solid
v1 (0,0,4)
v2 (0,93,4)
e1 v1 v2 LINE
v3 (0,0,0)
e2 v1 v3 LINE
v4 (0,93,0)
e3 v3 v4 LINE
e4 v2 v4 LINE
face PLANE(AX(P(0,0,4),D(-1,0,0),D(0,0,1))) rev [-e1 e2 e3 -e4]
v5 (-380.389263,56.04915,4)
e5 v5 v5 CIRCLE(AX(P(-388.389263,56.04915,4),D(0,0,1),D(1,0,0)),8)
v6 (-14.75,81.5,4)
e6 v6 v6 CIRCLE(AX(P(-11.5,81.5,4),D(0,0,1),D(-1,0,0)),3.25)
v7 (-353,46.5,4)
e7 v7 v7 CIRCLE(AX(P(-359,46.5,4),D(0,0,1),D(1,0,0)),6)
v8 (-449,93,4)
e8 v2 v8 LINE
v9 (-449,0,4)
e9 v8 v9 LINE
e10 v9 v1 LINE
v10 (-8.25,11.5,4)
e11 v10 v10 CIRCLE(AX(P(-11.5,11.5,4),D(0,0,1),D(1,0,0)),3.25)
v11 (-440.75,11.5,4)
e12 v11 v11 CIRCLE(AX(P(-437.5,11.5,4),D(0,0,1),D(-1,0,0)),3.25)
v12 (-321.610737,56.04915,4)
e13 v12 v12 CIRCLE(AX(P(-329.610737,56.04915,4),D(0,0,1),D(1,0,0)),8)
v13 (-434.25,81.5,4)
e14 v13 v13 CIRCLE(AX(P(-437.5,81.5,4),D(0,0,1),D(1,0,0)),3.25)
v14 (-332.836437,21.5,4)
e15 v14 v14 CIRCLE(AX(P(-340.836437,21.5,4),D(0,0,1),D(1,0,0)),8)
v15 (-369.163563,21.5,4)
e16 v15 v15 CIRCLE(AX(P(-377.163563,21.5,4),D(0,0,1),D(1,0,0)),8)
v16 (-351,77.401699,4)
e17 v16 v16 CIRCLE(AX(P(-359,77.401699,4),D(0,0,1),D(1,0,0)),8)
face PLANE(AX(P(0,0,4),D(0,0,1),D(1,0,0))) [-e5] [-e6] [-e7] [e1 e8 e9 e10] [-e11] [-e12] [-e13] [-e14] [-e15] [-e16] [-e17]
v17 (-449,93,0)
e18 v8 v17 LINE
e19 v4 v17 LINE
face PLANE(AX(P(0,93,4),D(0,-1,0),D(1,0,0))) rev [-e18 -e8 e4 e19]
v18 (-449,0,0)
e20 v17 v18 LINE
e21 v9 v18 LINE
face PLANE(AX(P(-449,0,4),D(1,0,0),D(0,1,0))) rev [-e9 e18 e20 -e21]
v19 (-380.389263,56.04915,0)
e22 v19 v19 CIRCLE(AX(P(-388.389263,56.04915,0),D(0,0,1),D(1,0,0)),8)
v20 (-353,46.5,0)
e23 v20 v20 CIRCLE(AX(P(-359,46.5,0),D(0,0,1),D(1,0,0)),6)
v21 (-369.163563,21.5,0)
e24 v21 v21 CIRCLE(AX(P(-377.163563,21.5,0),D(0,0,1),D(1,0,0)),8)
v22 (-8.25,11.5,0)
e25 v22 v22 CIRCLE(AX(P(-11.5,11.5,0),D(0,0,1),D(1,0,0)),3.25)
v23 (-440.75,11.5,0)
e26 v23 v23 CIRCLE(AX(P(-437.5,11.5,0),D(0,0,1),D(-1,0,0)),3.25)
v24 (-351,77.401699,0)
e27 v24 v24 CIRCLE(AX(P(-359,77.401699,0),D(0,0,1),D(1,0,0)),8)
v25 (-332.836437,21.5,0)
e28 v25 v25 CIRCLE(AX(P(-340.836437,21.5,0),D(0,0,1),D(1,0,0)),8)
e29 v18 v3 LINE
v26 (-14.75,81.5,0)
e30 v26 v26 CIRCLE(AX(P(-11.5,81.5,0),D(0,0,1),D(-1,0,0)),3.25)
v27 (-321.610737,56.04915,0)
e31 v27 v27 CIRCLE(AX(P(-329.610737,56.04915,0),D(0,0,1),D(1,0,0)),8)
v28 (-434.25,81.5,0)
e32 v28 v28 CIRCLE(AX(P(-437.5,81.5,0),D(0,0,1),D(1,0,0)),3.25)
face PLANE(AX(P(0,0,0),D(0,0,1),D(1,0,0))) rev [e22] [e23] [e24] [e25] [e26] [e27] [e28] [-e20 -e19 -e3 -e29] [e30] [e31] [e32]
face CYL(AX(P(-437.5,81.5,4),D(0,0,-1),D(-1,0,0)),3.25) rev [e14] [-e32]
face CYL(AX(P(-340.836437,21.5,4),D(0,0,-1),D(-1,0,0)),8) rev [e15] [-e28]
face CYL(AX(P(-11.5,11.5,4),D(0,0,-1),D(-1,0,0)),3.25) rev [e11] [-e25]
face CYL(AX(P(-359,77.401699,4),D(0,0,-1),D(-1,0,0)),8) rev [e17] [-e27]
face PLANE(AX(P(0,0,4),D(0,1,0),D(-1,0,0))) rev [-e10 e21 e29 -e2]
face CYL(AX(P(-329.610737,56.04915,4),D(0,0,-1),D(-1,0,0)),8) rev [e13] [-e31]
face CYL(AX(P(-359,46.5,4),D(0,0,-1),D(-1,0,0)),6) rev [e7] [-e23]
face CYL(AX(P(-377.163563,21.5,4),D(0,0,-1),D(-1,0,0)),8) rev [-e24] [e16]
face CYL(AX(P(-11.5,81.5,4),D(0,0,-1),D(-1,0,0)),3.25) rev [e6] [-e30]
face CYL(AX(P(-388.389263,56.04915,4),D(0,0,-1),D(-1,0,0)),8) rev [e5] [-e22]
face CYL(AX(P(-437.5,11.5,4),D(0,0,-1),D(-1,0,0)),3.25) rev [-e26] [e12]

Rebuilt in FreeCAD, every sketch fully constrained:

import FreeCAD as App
import Part
import Sketcher
Q = App.Units.Quantity

doc = App.newDocument("Part")
body = doc.addObject("PartDesign::Body", "Body")

# Sketch on XY plane
sketch1 = body.newObject("Sketcher::SketchObject", "Sketch")
sketch1.AttachmentSupport = (doc.getObject("XY_Plane"), [""])
sketch1.MapMode = "FlatFace"
sketch1.addGeometry([
    Part.LineSegment(App.Vector(-449, 93, 0), App.Vector(-449, 0, 0)),  # 0
    Part.LineSegment(App.Vector(-449, 0, 0), App.Vector(0, 0, 0)),  # 1
    Part.LineSegment(App.Vector(0, 0, 0), App.Vector(0, 93, 0)),  # 2
    Part.LineSegment(App.Vector(0, 93, 0), App.Vector(-449, 93, 0)),  # 3
    Part.Circle(App.Vector(-437.5, 11.5, 0), App.Vector(0, 0, 1), 3.2),  # 4
    Part.Circle(App.Vector(-377.2, 21.5, 0), App.Vector(0, 0, 1), 8),  # 5
    Part.Circle(App.Vector(-340.8, 21.5, 0), App.Vector(0, 0, 1), 8),  # 6
    Part.Circle(App.Vector(-359, 46.5, 0), App.Vector(0, 0, 1), 6),  # 7
    Part.Circle(App.Vector(-11.5, 11.5, 0), App.Vector(0, 0, 1), 3.2),  # 8
    Part.Circle(App.Vector(-388.4, 56, 0), App.Vector(0, 0, 1), 8),  # 9
    Part.Circle(App.Vector(-329.6, 56, 0), App.Vector(0, 0, 1), 8),  # 10
    Part.Circle(App.Vector(-437.5, 81.5, 0), App.Vector(0, 0, 1), 3.2),  # 11
    Part.Circle(App.Vector(-359, 77.4, 0), App.Vector(0, 0, 1), 8),  # 12
    Part.Circle(App.Vector(-11.5, 81.5, 0), App.Vector(0, 0, 1), 3.2),  # 13
], False)
sketch1.addConstraint([
    Sketcher.Constraint("Coincident", 0, 2, 1, 1),
    Sketcher.Constraint("Coincident", 1, 2, 2, 1),
    Sketcher.Constraint("Coincident", 2, 2, 3, 1),
    Sketcher.Constraint("Coincident", 3, 2, 0, 1),
    Sketcher.Constraint("Vertical", 0),
    Sketcher.Constraint("Horizontal", 1),
    Sketcher.Constraint("Vertical", 2),
    Sketcher.Constraint("Horizontal", 3),
    Sketcher.Constraint("Coincident", 1, 2, -1, 1),
    Sketcher.Constraint("Equal", 5, 6),
    Sketcher.Constraint("Equal", 4, 8),
    Sketcher.Constraint("Equal", 6, 9),
    Sketcher.Constraint("Equal", 9, 10),
    Sketcher.Constraint("Equal", 8, 11),
    Sketcher.Constraint("Equal", 10, 12),
    Sketcher.Constraint("Equal", 11, 13),
    Sketcher.Constraint("Horizontal", 5, 3, 6, 3),
    Sketcher.Constraint("Horizontal", 4, 3, 8, 3),
    Sketcher.Constraint("Horizontal", 9, 3, 10, 3),
    Sketcher.Constraint("Horizontal", 11, 3, 13, 3),
    Sketcher.Constraint("Vertical", 4, 3, 11, 3),
    Sketcher.Constraint("Vertical", 7, 3, 12, 3),
    Sketcher.Constraint("Vertical", 8, 3, 13, 3),
    Sketcher.Constraint("Diameter", 5, Q("16 mm")),
    Sketcher.Constraint("Diameter", 7, Q("12 mm")),
    Sketcher.Constraint("Diameter", 4, Q("6.5 mm")),
    Sketcher.Constraint("DistanceX", 1, 1, 1, 2, Q("449 mm")),
    Sketcher.Constraint("DistanceY", 0, 2, 0, 1, Q("93 mm")),
    Sketcher.Constraint("DistanceX", 7, 3, -1, 1, Q("359 mm")),
    Sketcher.Constraint("DistanceY", 4, 3, 5, 3, Q("10 mm")),
    Sketcher.Constraint("DistanceY", 5, 3, 7, 3, Q("25 mm")),
    Sketcher.Constraint("DistanceX", 4, 3, 8, 3, Q("426 mm")),
    Sketcher.Constraint("DistanceY", 4, 3, 11, 3, Q("70 mm")),
    Sketcher.Constraint("DistanceX", 4, 3, -1, 1, Q("437.5 mm")),
    Sketcher.Constraint("DistanceY", -1, 1, 4, 3, Q("11.5 mm")),
    Sketcher.Constraint("DistanceY", -1, 1, 12, 3, Q("77.401699 mm")),
    Sketcher.Constraint("DistanceX", 9, 3, 5, 3, Q("11.225699 mm")),
    Sketcher.Constraint("DistanceX", 6, 3, 10, 3, Q("11.225699 mm")),
    Sketcher.Constraint("DistanceY", -1, 1, 9, 3, Q("56.04915 mm")),
    Sketcher.Constraint("DistanceX", 5, 3, -1, 1, Q("377.163563 mm")),
    Sketcher.Constraint("DistanceX", 6, 3, -1, 1, Q("340.836437 mm")),
])
pad1 = body.newObject("PartDesign::Pad", "Pad")
pad1.Profile = sketch1
pad1.Length = 4

doc.recompute()
